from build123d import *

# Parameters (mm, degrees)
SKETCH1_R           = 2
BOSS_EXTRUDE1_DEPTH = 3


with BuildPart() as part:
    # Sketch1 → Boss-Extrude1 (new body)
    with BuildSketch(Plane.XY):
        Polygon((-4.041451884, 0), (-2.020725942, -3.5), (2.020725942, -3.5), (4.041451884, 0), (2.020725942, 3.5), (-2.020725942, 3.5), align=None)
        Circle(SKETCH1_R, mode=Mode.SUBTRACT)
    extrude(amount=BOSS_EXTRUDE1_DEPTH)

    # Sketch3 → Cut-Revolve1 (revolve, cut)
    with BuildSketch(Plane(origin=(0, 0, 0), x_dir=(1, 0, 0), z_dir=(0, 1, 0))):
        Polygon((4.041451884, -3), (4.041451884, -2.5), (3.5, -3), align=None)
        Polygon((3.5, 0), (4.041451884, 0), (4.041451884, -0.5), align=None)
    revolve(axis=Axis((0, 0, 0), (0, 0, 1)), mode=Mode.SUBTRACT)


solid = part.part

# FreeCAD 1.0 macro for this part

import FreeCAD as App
import Part
import Sketcher

V = App.Vector
Q = App.Units.Quantity

doc = App.newDocument("Part")
body = doc.addObject("PartDesign::Body", "Body")

sketch1 = body.newObject("Sketcher::SketchObject", "Sketch")
sketch1.AttachmentSupport = (doc.getObject("XY_Plane"), [""])
sketch1.MapMode = "FlatFace"
sketch1.addGeometry([
    Part.LineSegment(V(-4, 0, 0), V(-2, -3.5, 0)),
    Part.LineSegment(V(-2, -3.5, 0), V(2, -3.5, 0)),
    Part.LineSegment(V(2, -3.5, 0), V(4, 0, 0)),
    Part.LineSegment(V(4, 0, 0), V(2, 3.5, 0)),
    Part.LineSegment(V(2, 3.5, 0), V(-2, 3.5, 0)),
    Part.LineSegment(V(-2, 3.5, 0), V(-4, 0, 0)),
    Part.Circle(V(0, 0, 0), V(0, 0, 1), 2),
], False)
sketch1.addConstraint([
    Sketcher.Constraint("Coincident", 0, 2, 1, 1),
    Sketcher.Constraint("Coincident", 1, 2, 2, 1),
    Sketcher.Constraint("Coincident", 2, 2, 3, 1),
    Sketcher.Constraint("Coincident", 3, 2, 4, 1),
    Sketcher.Constraint("Coincident", 4, 2, 5, 1),
    Sketcher.Constraint("Coincident", 5, 2, 0, 1),
    Sketcher.Constraint("Horizontal", 1),
    Sketcher.Constraint("Horizontal", 4),
    Sketcher.Constraint("Coincident", 6, 3, -1, 1),
    Sketcher.Constraint("Symmetric", 0, 2, 3, 2, -1, 1),
    Sketcher.Constraint("Symmetric", 2, 2, 5, 2, -1, 1),
    Sketcher.Constraint("PointOnObject", 2, 2, -1),
    Sketcher.Constraint("Parallel", 2, 5),
    Sketcher.Constraint("Vertical", 1, 2, 3, 2),
    Sketcher.Constraint("Diameter", 6, Q("4 mm")),
    Sketcher.Constraint("Angle", 0, Q("-60 deg")),
    Sketcher.Constraint("DistanceY", 1, 2, 3, 2, Q("7 mm")),
    Sketcher.Constraint("DistanceX", 1, 1, 1, 2, Q("4.041452 mm")),
])
pad1 = body.newObject("PartDesign::Pad", "Pad")
pad1.Profile = sketch1
pad1.Length = 3

sketch2 = body.newObject("Sketcher::SketchObject", "Sketch001")
sketch2.AttachmentSupport = (doc.getObject("XZ_Plane"), [""])
sketch2.MapMode = "FlatFace"
sketch2.addGeometry([
    Part.LineSegment(V(4, 3, 0), V(4, 2.5, 0)),
    Part.LineSegment(V(4, 2.5, 0), V(3.5, 3, 0)),
    Part.LineSegment(V(3.5, 3, 0), V(4, 3, 0)),
    Part.LineSegment(V(4, 0, 0), V(3.5, 0, 0)),
    Part.LineSegment(V(3.5, 0, 0), V(4, 0.5, 0)),
    Part.LineSegment(V(4, 0.5, 0), V(4, 0, 0)),
], False)
sketch2.addConstraint([
    Sketcher.Constraint("Coincident", 0, 2, 1, 1),
    Sketcher.Constraint("Coincident", 1, 2, 2, 1),
    Sketcher.Constraint("Coincident", 2, 2, 0, 1),
    Sketcher.Constraint("Coincident", 3, 2, 4, 1),
    Sketcher.Constraint("Coincident", 4, 2, 5, 1),
    Sketcher.Constraint("Coincident", 5, 2, 3, 1),
    Sketcher.Constraint("Vertical", 0),
    Sketcher.Constraint("Horizontal", 2),
    Sketcher.Constraint("Horizontal", 3),
    Sketcher.Constraint("Vertical", 5),
    Sketcher.Constraint("PointOnObject", 3, 2, -1),
    Sketcher.Constraint("Vertical", 1, 2, 3, 2),
    Sketcher.Constraint("Vertical", 2, 2, 4, 2),
    Sketcher.Constraint("Equal", 0, 5),
    Sketcher.Constraint("DistanceY", 0, 2, 0, 1, Q("0.5 mm")),
    Sketcher.Constraint("DistanceY", -1, 1, 1, 2, Q("3 mm")),
    Sketcher.Constraint("DistanceX", -1, 1, 1, 2, Q("3.5 mm")),
    Sketcher.Constraint("Distance", 1, Q("0.737001 mm")),
])
groove = body.newObject("PartDesign::Groove", "Groove")
groove.Profile = sketch2
groove.ReferenceAxis = (sketch2, ["V_Axis"])
groove.Angle = 360

doc.recompute()
